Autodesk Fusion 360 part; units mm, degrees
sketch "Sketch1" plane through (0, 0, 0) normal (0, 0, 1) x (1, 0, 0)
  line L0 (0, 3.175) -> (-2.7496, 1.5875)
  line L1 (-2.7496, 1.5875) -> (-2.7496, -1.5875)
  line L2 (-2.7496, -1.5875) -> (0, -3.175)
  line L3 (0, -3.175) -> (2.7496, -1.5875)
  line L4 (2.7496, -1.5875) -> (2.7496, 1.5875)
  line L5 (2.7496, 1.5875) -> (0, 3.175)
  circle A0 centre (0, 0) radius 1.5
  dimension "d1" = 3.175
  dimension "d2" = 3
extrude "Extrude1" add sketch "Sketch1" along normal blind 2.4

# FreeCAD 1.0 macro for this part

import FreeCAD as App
import Part
import Sketcher

V = App.Vector
Q = App.Units.Quantity


def add_polygon(sketch, points):
    """Adds a closed chain of lines whose ends are joined by coincident constraints."""
    first, n = sketch.GeometryCount, len(points)
    for a, b in zip(points, points[1:] + points[:1]):
        sketch.addGeometry(Part.LineSegment(App.Vector(*a, 0), App.Vector(*b, 0)), False)
    for i in range(n):
        sketch.addConstraint(Sketcher.Constraint("Coincident", first + i, 2, first + (i + 1) % n, 1))

doc = App.newDocument("Part")
body = doc.addObject("PartDesign::Body", "Body")

# Sketch on XY plane
sketch1 = body.newObject("Sketcher::SketchObject", "Sketch")
sketch1.AttachmentSupport = (doc.getObject("XY_Plane"), [""])
sketch1.MapMode = "FlatFace"
add_polygon(sketch1, [(2.7, 1.6), (0, 3.2), (-2.7, 1.6), (-2.7, -1.6), (0, -3.2), (2.7, -1.6)])  # lines 0-5
sketch1.addGeometry(Part.Circle(V(0, 0, 0), V(0, 0, 1), 1.5), False)  # 6
sketch1.addConstraint([
    Sketcher.Constraint("Vertical", 2),
    Sketcher.Constraint("Vertical", 5),
    Sketcher.Constraint("Coincident", 6, 3, -1, 1),
    Sketcher.Constraint("Symmetric", 0, 2, 3, 2, -1, 1),
    Sketcher.Constraint("Symmetric", 1, 2, 4, 2, -1, 1),
    Sketcher.Constraint("PointOnObject", 0, 2, -2),
    Sketcher.Constraint("Parallel", 0, 3),
    Sketcher.Constraint("Horizontal", 2, 2, 4, 2),
    Sketcher.Constraint("Diameter", 6, Q("0.1181 in")),
    Sketcher.Constraint("DistanceY", 2, 2, 2, 1, Q("0.125 in")),
    Sketcher.Constraint("Distance", 0, Q("0.125 in")),
    Sketcher.Constraint("DistanceY", -1, 1, 0, 2, Q("0.125 in")),
])
pad1 = body.newObject("PartDesign::Pad", "Pad")
pad1.Profile = sketch1
pad1.Length = Q("0.0944882 in")

doc.recompute()
